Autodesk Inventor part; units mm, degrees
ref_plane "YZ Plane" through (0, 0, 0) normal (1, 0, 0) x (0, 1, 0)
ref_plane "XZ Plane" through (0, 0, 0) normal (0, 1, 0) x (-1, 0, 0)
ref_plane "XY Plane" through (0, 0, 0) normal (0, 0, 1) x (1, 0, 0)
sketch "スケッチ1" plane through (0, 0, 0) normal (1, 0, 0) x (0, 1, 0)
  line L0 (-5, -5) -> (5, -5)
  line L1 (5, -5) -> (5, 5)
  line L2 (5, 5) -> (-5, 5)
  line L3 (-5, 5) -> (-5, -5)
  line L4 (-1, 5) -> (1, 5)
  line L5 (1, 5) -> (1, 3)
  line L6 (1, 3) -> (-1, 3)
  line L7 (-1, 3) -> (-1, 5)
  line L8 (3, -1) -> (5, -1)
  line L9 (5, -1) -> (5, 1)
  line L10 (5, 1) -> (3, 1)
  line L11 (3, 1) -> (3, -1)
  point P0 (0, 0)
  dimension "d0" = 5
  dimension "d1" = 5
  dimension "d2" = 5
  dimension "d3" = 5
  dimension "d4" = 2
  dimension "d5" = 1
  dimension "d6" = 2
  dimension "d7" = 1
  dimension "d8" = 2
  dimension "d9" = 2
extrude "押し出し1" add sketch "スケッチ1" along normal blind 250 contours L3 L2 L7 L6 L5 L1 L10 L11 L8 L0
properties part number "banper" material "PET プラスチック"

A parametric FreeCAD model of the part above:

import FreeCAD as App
import Part
import Sketcher
Q = App.Units.Quantity

doc = App.newDocument("Part")
body = doc.addObject("PartDesign::Body", "Body")

# Sketch on YZ plane
sketch1 = body.newObject("Sketcher::SketchObject", "Sketch")
sketch1.AttachmentSupport = (doc.getObject("YZ_Plane"), [""])
sketch1.MapMode = "FlatFace"
sketch1.addGeometry([
    Part.LineSegment(App.Vector(-5, 5, 0), App.Vector(-5, -5, 0)),  # 0
    Part.LineSegment(App.Vector(-5, -5, 0), App.Vector(5, -5, 0)),  # 1
    Part.LineSegment(App.Vector(5, -5, 0), App.Vector(5, -1, 0)),  # 2
    Part.LineSegment(App.Vector(5, -1, 0), App.Vector(3, -1, 0)),  # 3
    Part.LineSegment(App.Vector(3, -1, 0), App.Vector(3, 1, 0)),  # 4
    Part.LineSegment(App.Vector(3, 1, 0), App.Vector(5, 1, 0)),  # 5
    Part.LineSegment(App.Vector(5, 1, 0), App.Vector(5, 5, 0)),  # 6
    Part.LineSegment(App.Vector(5, 5, 0), App.Vector(1, 5, 0)),  # 7
    Part.LineSegment(App.Vector(1, 5, 0), App.Vector(1, 3, 0)),  # 8
    Part.LineSegment(App.Vector(1, 3, 0), App.Vector(-1, 3, 0)),  # 9
    Part.LineSegment(App.Vector(-1, 3, 0), App.Vector(-1, 5, 0)),  # 10
    Part.LineSegment(App.Vector(-1, 5, 0), App.Vector(-5, 5, 0)),  # 11
], False)
sketch1.addConstraint([
    Sketcher.Constraint("Coincident", 0, 2, 1, 1),
    Sketcher.Constraint("Coincident", 1, 2, 2, 1),
    Sketcher.Constraint("Coincident", 2, 2, 3, 1),
    Sketcher.Constraint("Coincident", 3, 2, 4, 1),
    Sketcher.Constraint("Coincident", 4, 2, 5, 1),
    Sketcher.Constraint("Coincident", 5, 2, 6, 1),
    Sketcher.Constraint("Coincident", 6, 2, 7, 1),
    Sketcher.Constraint("Coincident", 7, 2, 8, 1),
    Sketcher.Constraint("Coincident", 8, 2, 9, 1),
    Sketcher.Constraint("Coincident", 9, 2, 10, 1),
    Sketcher.Constraint("Coincident", 10, 2, 11, 1),
    Sketcher.Constraint("Coincident", 11, 2, 0, 1),
    Sketcher.Constraint("Vertical", 0),
    Sketcher.Constraint("Horizontal", 1),
    Sketcher.Constraint("Vertical", 2),
    Sketcher.Constraint("Horizontal", 3),
    Sketcher.Constraint("Vertical", 4),
    Sketcher.Constraint("Horizontal", 5),
    Sketcher.Constraint("Vertical", 6),
    Sketcher.Constraint("Horizontal", 7),
    Sketcher.Constraint("Vertical", 8),
    Sketcher.Constraint("Horizontal", 9),
    Sketcher.Constraint("Vertical", 10),
    Sketcher.Constraint("Horizontal", 11),
    Sketcher.Constraint("Symmetric", 0, 2, 6, 2, -1, 1),
    Sketcher.Constraint("Symmetric", 1, 2, 11, 2, -1, 1),
    Sketcher.Constraint("Equal", 5, 9),
    Sketcher.Constraint("Equal", 7, 11),
    Sketcher.Constraint("Equal", 1, 0),
    Sketcher.Constraint("Equal", 11, 2),
    Sketcher.Constraint("Equal", 9, 4),
    Sketcher.Constraint("Equal", 4, 8),
    Sketcher.Constraint("DistanceX", 3, 2, 3, 1, Q("2 mm")),
    Sketcher.Constraint("DistanceX", 0, 2, -1, 1, Q("5 mm")),
])
pad1 = body.newObject("PartDesign::Pad", "Pad")
pad1.Profile = sketch1
pad1.Length = 250

doc.recompute()
